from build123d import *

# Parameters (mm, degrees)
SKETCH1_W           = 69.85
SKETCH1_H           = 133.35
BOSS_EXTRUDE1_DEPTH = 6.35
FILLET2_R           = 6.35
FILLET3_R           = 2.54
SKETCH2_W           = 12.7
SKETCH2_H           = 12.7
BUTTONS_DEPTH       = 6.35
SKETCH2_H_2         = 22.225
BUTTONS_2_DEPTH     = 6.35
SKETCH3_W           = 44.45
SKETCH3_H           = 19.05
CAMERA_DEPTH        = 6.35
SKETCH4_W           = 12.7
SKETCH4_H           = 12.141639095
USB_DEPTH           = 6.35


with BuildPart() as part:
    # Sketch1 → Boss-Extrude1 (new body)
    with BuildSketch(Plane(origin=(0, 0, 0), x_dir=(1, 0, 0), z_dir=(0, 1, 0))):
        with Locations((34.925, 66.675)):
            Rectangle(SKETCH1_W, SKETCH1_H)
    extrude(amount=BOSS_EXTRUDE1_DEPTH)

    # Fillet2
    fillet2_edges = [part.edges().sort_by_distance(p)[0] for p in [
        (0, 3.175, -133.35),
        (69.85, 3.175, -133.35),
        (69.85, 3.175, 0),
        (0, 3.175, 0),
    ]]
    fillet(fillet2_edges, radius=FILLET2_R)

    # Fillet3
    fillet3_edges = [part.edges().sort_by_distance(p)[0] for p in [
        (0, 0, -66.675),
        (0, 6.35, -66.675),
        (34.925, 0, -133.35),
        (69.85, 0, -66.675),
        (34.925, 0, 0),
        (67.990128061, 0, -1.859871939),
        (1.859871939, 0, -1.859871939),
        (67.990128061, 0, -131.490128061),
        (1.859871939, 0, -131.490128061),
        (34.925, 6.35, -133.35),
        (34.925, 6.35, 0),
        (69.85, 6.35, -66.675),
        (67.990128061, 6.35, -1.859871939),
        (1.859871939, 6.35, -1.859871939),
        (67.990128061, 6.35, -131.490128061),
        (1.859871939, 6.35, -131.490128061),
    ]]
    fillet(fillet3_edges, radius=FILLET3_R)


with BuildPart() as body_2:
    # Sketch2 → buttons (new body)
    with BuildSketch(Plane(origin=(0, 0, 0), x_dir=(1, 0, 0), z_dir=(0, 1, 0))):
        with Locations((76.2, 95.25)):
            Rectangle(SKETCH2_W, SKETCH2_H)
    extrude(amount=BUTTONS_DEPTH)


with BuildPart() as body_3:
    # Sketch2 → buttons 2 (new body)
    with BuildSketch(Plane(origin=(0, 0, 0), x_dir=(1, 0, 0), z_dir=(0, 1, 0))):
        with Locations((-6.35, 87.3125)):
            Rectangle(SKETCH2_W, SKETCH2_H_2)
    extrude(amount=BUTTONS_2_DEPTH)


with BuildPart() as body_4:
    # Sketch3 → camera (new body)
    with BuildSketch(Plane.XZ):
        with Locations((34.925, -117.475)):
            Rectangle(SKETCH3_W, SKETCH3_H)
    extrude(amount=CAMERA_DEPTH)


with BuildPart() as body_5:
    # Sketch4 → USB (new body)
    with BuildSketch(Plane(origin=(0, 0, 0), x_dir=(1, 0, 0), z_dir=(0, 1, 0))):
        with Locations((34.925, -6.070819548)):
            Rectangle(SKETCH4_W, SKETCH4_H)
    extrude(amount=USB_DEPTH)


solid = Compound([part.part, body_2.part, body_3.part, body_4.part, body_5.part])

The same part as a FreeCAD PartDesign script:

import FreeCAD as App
import Part
import Sketcher

V = App.Vector
Q = App.Units.Quantity


def edges_at(feature, points):
    """Names of the edges that pass closest to the given points."""
    edges = feature.Shape.Edges
    near = lambda p: min(range(len(edges)), key=lambda i: edges[i].distToShape(Part.Vertex(*p))[0])
    return sorted({f"Edge{near(p) + 1}" for p in points})


def add_polygon(sketch, points):
    """Adds a closed chain of lines whose ends are joined by coincident constraints."""
    first, n = sketch.GeometryCount, len(points)
    for a, b in zip(points, points[1:] + points[:1]):
        sketch.addGeometry(Part.LineSegment(App.Vector(*a, 0), App.Vector(*b, 0)), False)
    for i in range(n):
        sketch.addConstraint(Sketcher.Constraint("Coincident", first + i, 2, first + (i + 1) % n, 1))

doc = App.newDocument("Part")
body = doc.addObject("PartDesign::Body", "Body")

sketch1 = body.newObject("Sketcher::SketchObject", "Sketch")
sketch1.AttachmentSupport = (doc.getObject("XZ_Plane"), [""])
sketch1.MapMode = "FlatFace"
add_polygon(sketch1, [(0, -133.35), (0, 0), (69.85, 0), (69.85, -133.35)])
sketch1.addConstraint([
    Sketcher.Constraint("Vertical", 0),
    Sketcher.Constraint("Horizontal", 1),
    Sketcher.Constraint("Vertical", 2),
    Sketcher.Constraint("Horizontal", 3),
    Sketcher.Constraint("Coincident", 0, 2, -1, 1),
    Sketcher.Constraint("DistanceX", 1, 1, 1, 2, Q("2.75 in")),
    Sketcher.Constraint("DistanceY", 0, 1, 0, 2, Q("5.25 in")),
])
pad1 = body.newObject("PartDesign::Pad", "Pad")
pad1.Profile = sketch1
pad1.Length = Q("0.25 in")
pad1.Reversed = True
doc.recompute()

fillet = body.newObject("PartDesign::Fillet", "Fillet")
fillet.Base = (pad1, edges_at(pad1, [
    (0, 3.175, -133.35),
    (69.85, 3.175, -133.35),
    (69.85, 3.175, 0),
    (0, 3.175, 0),
]))
fillet.Radius = Q("0.25 in")
doc.recompute()

fillet2 = body.newObject("PartDesign::Fillet", "Fillet001")
fillet2.Base = (fillet, edges_at(fillet, [
    (0, 0, -66.675),
    (0, 6.35, -66.675),
    (34.925, 0, -133.35),
    (69.85, 0, -66.675),
    (34.925, 0, 0),
    (67.99, 0, -1.86),
    (1.86, 0, -1.86),
    (67.99, 0, -131.49),
    (1.86, 0, -131.49),
    (34.925, 6.35, -133.35),
    (34.925, 6.35, 0),
    (69.85, 6.35, -66.675),
    (67.99, 6.35, -1.86),
    (1.86, 6.35, -1.86),
    (67.99, 6.35, -131.49),
    (1.86, 6.35, -131.49),
]))
fillet2.Radius = Q("0.1 in")
body2 = doc.addObject("PartDesign::Body", "Body001")

sketch2 = body2.newObject("Sketcher::SketchObject", "Sketch001")
sketch2.AttachmentSupport = (doc.getObject("XZ_Plane001"), [""])
sketch2.MapMode = "FlatFace"
add_polygon(sketch2, [(69.85, -101.6), (69.85, -88.9), (82.55, -88.9), (82.55, -101.6)])
sketch2.addConstraint([
    Sketcher.Constraint("Vertical", 0),
    Sketcher.Constraint("Horizontal", 1),
    Sketcher.Constraint("Vertical", 2),
    Sketcher.Constraint("Horizontal", 3),
    Sketcher.Constraint("Equal", 3, 0),
    Sketcher.Constraint("DistanceX", 1, 1, 1, 2, Q("0.5 in")),
    Sketcher.Constraint("DistanceY", 2, 2, -1, 1, Q("4 in")),
    Sketcher.Constraint("DistanceX", -1, 1, 0, 2, Q("2.75 in")),
])
pad2 = body2.newObject("PartDesign::Pad", "Pad001")
pad2.Profile = sketch2
pad2.Length = Q("0.25 in")
pad2.Reversed = True
body3 = doc.addObject("PartDesign::Body", "Body002")

sketch3 = body3.newObject("Sketcher::SketchObject", "Sketch002")
sketch3.AttachmentSupport = (doc.getObject("XZ_Plane002"), [""])
sketch3.MapMode = "FlatFace"
add_polygon(sketch3, [(-12.7, -98.425), (-12.7, -76.2), (0, -76.2), (0, -98.425)])
sketch3.addConstraint([
    Sketcher.Constraint("Vertical", 0),
    Sketcher.Constraint("Horizontal", 1),
    Sketcher.Constraint("Vertical", 2),
    Sketcher.Constraint("Horizontal", 3),
    Sketcher.Constraint("PointOnObject", 1, 2, -2),
    Sketcher.Constraint("DistanceX", 1, 1, 1, 2, Q("0.5 in")),
    Sketcher.Constraint("DistanceY", 0, 2, -1, 1, Q("3 in")),
    Sketcher.Constraint("DistanceY", 0, 1, 0, 2, Q("0.875 in")),
])
pad3 = body3.newObject("PartDesign::Pad", "Pad002")
pad3.Profile = sketch3
pad3.Length = Q("0.25 in")
pad3.Reversed = True
body4 = doc.addObject("PartDesign::Body", "Body003")

sketch4 = body4.newObject("Sketcher::SketchObject", "Sketch003")
sketch4.AttachmentSupport = (doc.getObject("XZ_Plane003"), [""])
sketch4.MapMode = "FlatFace"
add_polygon(sketch4, [(12.7, -107.95), (12.7, -127), (57.15, -127), (57.15, -107.95)])
sketch4.addConstraint([
    Sketcher.Constraint("Vertical", 0),
    Sketcher.Constraint("Horizontal", 1),
    Sketcher.Constraint("Vertical", 2),
    Sketcher.Constraint("Horizontal", 3),
    Sketcher.Constraint("DistanceY", 0, 2, -1, 1, Q("5 in")),
    Sketcher.Constraint("DistanceX", 1, 1, 1, 2, Q("1.75 in")),
    Sketcher.Constraint("DistanceY", 0, 2, 0, 1, Q("0.75 in")),
    Sketcher.Constraint("DistanceX", -1, 1, 0, 2, Q("0.5 in")),
])
pad4 = body4.newObject("PartDesign::Pad", "Pad003")
pad4.Profile = sketch4
pad4.Length = Q("0.25 in")
body5 = doc.addObject("PartDesign::Body", "Body004")

sketch5 = body5.newObject("Sketcher::SketchObject", "Sketch004")
sketch5.AttachmentSupport = (doc.getObject("XZ_Plane004"), [""])
sketch5.MapMode = "FlatFace"
add_polygon(sketch5, [(28.575, 0), (28.575, 12.141639), (41.275, 12.141639), (41.275, 0)])
sketch5.addConstraint([
    Sketcher.Constraint("Vertical", 0),
    Sketcher.Constraint("Horizontal", 1),
    Sketcher.Constraint("Vertical", 2),
    Sketcher.Constraint("Horizontal", 3),
    Sketcher.Constraint("PointOnObject", 2, 2, -1),
    Sketcher.Constraint("DistanceX", 1, 1, 1, 2, Q("0.5 in")),
    Sketcher.Constraint("DistanceX", -1, 1, 0, 2, Q("1.125 in")),
    Sketcher.Constraint("DistanceY", 0, 1, 0, 2, Q("12.141639 mm")),
])
pad5 = body5.newObject("PartDesign::Pad", "Pad004")
pad5.Profile = sketch5
pad5.Length = Q("0.25 in")
pad5.Reversed = True

doc.recompute()
